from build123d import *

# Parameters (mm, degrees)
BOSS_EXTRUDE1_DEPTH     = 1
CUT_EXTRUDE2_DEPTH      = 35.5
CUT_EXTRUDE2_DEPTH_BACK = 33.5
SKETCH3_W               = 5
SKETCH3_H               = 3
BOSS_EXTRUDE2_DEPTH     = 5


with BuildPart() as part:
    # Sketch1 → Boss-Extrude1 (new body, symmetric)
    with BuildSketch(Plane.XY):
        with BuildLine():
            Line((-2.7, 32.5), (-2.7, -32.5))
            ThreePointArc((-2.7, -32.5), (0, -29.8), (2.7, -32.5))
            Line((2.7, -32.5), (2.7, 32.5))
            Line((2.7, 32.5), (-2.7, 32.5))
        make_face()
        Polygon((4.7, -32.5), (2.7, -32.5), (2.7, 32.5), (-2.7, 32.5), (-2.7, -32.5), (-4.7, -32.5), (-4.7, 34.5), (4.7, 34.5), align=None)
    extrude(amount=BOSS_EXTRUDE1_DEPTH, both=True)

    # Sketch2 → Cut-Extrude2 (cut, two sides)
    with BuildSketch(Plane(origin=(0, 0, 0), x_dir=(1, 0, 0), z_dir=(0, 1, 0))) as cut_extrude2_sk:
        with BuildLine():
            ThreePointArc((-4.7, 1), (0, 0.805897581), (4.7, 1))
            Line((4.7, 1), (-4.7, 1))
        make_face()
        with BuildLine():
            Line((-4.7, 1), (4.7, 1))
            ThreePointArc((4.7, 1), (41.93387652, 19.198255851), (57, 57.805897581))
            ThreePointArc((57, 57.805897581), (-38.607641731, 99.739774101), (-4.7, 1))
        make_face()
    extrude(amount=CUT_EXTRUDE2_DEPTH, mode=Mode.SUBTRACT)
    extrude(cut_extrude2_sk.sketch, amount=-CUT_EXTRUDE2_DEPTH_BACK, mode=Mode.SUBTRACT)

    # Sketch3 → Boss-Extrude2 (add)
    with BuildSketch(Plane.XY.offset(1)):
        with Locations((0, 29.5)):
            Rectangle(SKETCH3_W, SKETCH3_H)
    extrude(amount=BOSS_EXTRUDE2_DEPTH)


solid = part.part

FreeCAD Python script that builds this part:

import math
import FreeCAD as App
import Part
import Sketcher

V = App.Vector

doc = App.newDocument("Part")
body = doc.addObject("PartDesign::Body", "Body")

# Sketch on XY plane
sketch1 = body.newObject("Sketcher::SketchObject", "Sketch")
sketch1.AttachmentSupport = (doc.getObject("XY_Plane"), [""])
sketch1.MapMode = "FlatFace"
sketch1.addGeometry(Part.ArcOfCircle(Part.Circle(V(0, -32.5, 0), V(0, 0, 1), 2.7), math.radians(0), math.radians(180)), False)
sketch1.addGeometry(Part.LineSegment(V(2.7, -32.5, 0), V(4.7, -32.5, 0)), False)
sketch1.addGeometry(Part.LineSegment(V(4.7, -32.5, 0), V(4.7, 34.5, 0)), False)
sketch1.addGeometry(Part.LineSegment(V(4.7, 34.5, 0), V(-4.7, 34.5, 0)), False)
sketch1.addGeometry(Part.LineSegment(V(-4.7, 34.5, 0), V(-4.7, -32.5, 0)), False)
sketch1.addGeometry(Part.LineSegment(V(-4.7, -32.5, 0), V(-2.7, -32.5, 0)), False)
sketch1.addConstraint(Sketcher.Constraint("Coincident", 0, 1, 1, 1))
sketch1.addConstraint(Sketcher.Constraint("Coincident", 1, 2, 2, 1))
sketch1.addConstraint(Sketcher.Constraint("Coincident", 2, 2, 3, 1))
sketch1.addConstraint(Sketcher.Constraint("Coincident", 3, 2, 4, 1))
sketch1.addConstraint(Sketcher.Constraint("Coincident", 4, 2, 5, 1))
sketch1.addConstraint(Sketcher.Constraint("Coincident", 5, 2, 0, 2))
sketch1.addConstraint(Sketcher.Constraint("Horizontal", 1))
sketch1.addConstraint(Sketcher.Constraint("Vertical", 2))
sketch1.addConstraint(Sketcher.Constraint("Horizontal", 3))
sketch1.addConstraint(Sketcher.Constraint("Vertical", 4))
sketch1.addConstraint(Sketcher.Constraint("Horizontal", 5))
sketch1.addConstraint(Sketcher.Constraint("Symmetric", 1, 2, 4, 2, -2))
sketch1.addConstraint(Sketcher.Constraint("PointOnObject", 0, 3, -2))
sketch1.addConstraint(Sketcher.Constraint("Radius", 0, 2.7))
sketch1.addConstraint(Sketcher.Constraint("DistanceX", 1, 1, 1, 2, 2.0))
sketch1.addConstraint(Sketcher.Constraint("DistanceY", 2, 1, 2, 2, 67.0))
sketch1.addConstraint(Sketcher.Constraint("DistanceY", 0, 3, 2, 2, 67.0))
sketch1.addConstraint(Sketcher.Constraint("DistanceY", 0, 3, -1, 1, 32.5))
pad1 = body.newObject("PartDesign::Pad", "Pad")
pad1.Profile = sketch1
pad1.Length = 2
pad1.Midplane = True

# Sketch on XZ plane
sketch2 = body.newObject("Sketcher::SketchObject", "Sketch001")
sketch2.AttachmentSupport = (doc.getObject("XZ_Plane"), [""])
sketch2.MapMode = "FlatFace"
sketch2.addGeometry(Part.ArcOfCircle(Part.Circle(V(0, -58, 0), V(0, 0, 1), 57), math.radians(85.27), math.radians(94.73)), False)
sketch2.addGeometry(Part.ArcOfCircle(Part.Circle(V(0, -58, 0), V(0, 0, 1), 57), math.radians(0), math.radians(85)), False)
sketch2.addGeometry(Part.ArcOfCircle(Part.Circle(V(0, -58, 0), V(0, 0, 1), 57), math.radians(95), math.radians(360)), False)
sketch2.addConstraint(Sketcher.Constraint("Tangent", 0, 1, 1, 2))
sketch2.addConstraint(Sketcher.Constraint("Tangent", 1, 1, 2, 2))
sketch2.addConstraint(Sketcher.Constraint("Coincident", 2, 1, 0, 2))
sketch2.addConstraint(Sketcher.Constraint("Equal", 0, 1))
sketch2.addConstraint(Sketcher.Constraint("Symmetric", 0, 1, 2, 1, -2))
sketch2.addConstraint(Sketcher.Constraint("Horizontal", 2, 3, 1, 1))
sketch2.addConstraint(Sketcher.Constraint("Radius", 0, 57.0))
sketch2.addConstraint(Sketcher.Constraint("DistanceY", 0, 1, -1, 1, 1.0))
sketch2.addConstraint(Sketcher.Constraint("DistanceX", -1, 1, 0, 1, 4.7))
pocket1 = body.newObject("PartDesign::Pocket", "Pocket")
pocket1.Profile = sketch2
pocket1.Type = "ThroughAll"
pocket1.Midplane = True

# Sketch on XY plane
sketch3 = body.newObject("Sketcher::SketchObject", "Sketch002")
sketch3.AttachmentSupport = (doc.getObject("XY_Plane"), [""])
sketch3.MapMode = "FlatFace"
sketch3.AttachmentOffset = App.Placement(V(0, 0, 1), App.Rotation())
sketch3.addGeometry(Part.LineSegment(V(-2.5, 31, 0), V(-2.5, 28, 0)), False)
sketch3.addGeometry(Part.LineSegment(V(-2.5, 28, 0), V(2.5, 28, 0)), False)
sketch3.addGeometry(Part.LineSegment(V(2.5, 28, 0), V(2.5, 31, 0)), False)
sketch3.addGeometry(Part.LineSegment(V(2.5, 31, 0), V(-2.5, 31, 0)), False)
sketch3.addConstraint(Sketcher.Constraint("Coincident", 0, 2, 1, 1))
sketch3.addConstraint(Sketcher.Constraint("Coincident", 1, 2, 2, 1))
sketch3.addConstraint(Sketcher.Constraint("Coincident", 2, 2, 3, 1))
sketch3.addConstraint(Sketcher.Constraint("Coincident", 3, 2, 0, 1))
sketch3.addConstraint(Sketcher.Constraint("Vertical", 0))
sketch3.addConstraint(Sketcher.Constraint("Horizontal", 1))
sketch3.addConstraint(Sketcher.Constraint("Vertical", 2))
sketch3.addConstraint(Sketcher.Constraint("Horizontal", 3))
sketch3.addConstraint(Sketcher.Constraint("DistanceX", 1, 1, 1, 2, 5.0))
sketch3.addConstraint(Sketcher.Constraint("DistanceY", 0, 2, 0, 1, 3.0))
sketch3.addConstraint(Sketcher.Constraint("DistanceY", -1, 1, 0, 2, 28.0))
sketch3.addConstraint(Sketcher.Constraint("DistanceX", 0, 2, -1, 1, 2.5))
pad2 = body.newObject("PartDesign::Pad", "Pad001")
pad2.Profile = sketch3
pad2.Length = 5

doc.recompute()
